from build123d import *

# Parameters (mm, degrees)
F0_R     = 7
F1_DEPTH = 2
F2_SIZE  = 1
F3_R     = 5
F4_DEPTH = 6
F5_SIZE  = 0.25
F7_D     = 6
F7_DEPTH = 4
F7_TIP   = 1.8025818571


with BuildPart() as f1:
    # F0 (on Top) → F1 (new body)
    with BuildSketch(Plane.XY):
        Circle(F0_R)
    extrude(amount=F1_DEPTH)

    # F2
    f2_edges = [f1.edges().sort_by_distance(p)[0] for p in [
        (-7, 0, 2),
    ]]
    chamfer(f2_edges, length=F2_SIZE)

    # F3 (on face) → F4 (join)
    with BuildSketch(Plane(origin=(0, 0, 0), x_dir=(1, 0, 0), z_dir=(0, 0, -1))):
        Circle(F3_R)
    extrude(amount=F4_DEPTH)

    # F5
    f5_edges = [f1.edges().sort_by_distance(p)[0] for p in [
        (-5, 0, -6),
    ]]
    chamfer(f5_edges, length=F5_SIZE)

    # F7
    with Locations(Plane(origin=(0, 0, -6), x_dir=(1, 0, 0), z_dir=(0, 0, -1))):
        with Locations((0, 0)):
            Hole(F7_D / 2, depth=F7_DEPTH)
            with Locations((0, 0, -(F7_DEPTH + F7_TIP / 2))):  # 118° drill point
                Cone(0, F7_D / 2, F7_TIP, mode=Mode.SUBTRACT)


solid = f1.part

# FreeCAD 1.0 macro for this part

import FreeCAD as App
import Part
import Sketcher
from FreeCAD import Vector
Q = App.Units.Quantity


def edges_at(feature, points):
    """Names of the edges that pass closest to the given points."""
    edges = feature.Shape.Edges
    near = lambda p: min(range(len(edges)), key=lambda i: edges[i].distToShape(Part.Vertex(*p))[0])
    return sorted({f"Edge{near(p) + 1}" for p in points})

doc = App.newDocument("Part")
body = doc.addObject("PartDesign::Body", "Body")

sketch1 = doc.addObject("Sketcher::SketchObject", "Sketch")
body.addObject(sketch1)
sketch1.AttachmentSupport = (doc.XY_Plane, [""])
sketch1.MapMode = "FlatFace"
sketch1.addGeometry(Part.Circle(Vector(0, 0, 0), Vector(0, 0, 1), 7), False)
sketch1.addConstraint(Sketcher.Constraint("Coincident", 0, 3, -1, 1))
sketch1.addConstraint(Sketcher.Constraint("Diameter", 0, Q("14 mm")))
pad1 = doc.addObject("PartDesign::Pad", "Pad")
body.addObject(pad1)
pad1.Profile = sketch1
pad1.Length = 2
doc.recompute()

chamfer = doc.addObject("PartDesign::Chamfer", "Chamfer")
body.addObject(chamfer)
chamfer.Base = (pad1, edges_at(pad1, [(-7, 0, 2)]))
chamfer.Size = 1

sketch2 = doc.addObject("Sketcher::SketchObject", "Sketch001")
body.addObject(sketch2)
sketch2.AttachmentSupport = (doc.XY_Plane, [""])
sketch2.MapMode = "FlatFace"
sketch2.addGeometry(Part.Circle(Vector(0, 0, 0), Vector(0, 0, 1), 5), False)
sketch2.addConstraint(Sketcher.Constraint("Coincident", 0, 3, -1, 1))
sketch2.addConstraint(Sketcher.Constraint("Diameter", 0, Q("10 mm")))
pad2 = doc.addObject("PartDesign::Pad", "Pad001")
body.addObject(pad2)
pad2.Profile = sketch2
pad2.Length = 6
pad2.Reversed = True
doc.recompute()

chamfer2 = doc.addObject("PartDesign::Chamfer", "Chamfer001")
body.addObject(chamfer2)
chamfer2.Base = (pad2, edges_at(pad2, [(-5, 0, -6)]))
chamfer2.Size = 0.25

sketch3 = doc.addObject("Sketcher::SketchObject", "Sketch002")
body.addObject(sketch3)
sketch3.AttachmentSupport = (doc.XY_Plane, [""])
sketch3.MapMode = "FlatFace"
sketch3.AttachmentOffset = App.Placement(Vector(0, 0, -6), App.Rotation())
sketch3.addGeometry(Part.Circle(Vector(0, 0, 0), Vector(0, 0, 1), 3), False)
sketch3.addConstraint(Sketcher.Constraint("Coincident", 0, 3, -1, 1))
sketch3.addConstraint(Sketcher.Constraint("Diameter", 0, Q("6 mm")))
doc.recompute()
hole = doc.addObject("PartDesign::Hole", "Hole")
body.addObject(hole)
hole.Profile = sketch3
hole.ThreadType = "None"
hole.Diameter = 6
hole.DepthType = "Dimension"
hole.Depth = 4
hole.DrillPoint = "Angled"
hole.DrillPointAngle = 118
hole.Reversed = True

doc.recompute()
